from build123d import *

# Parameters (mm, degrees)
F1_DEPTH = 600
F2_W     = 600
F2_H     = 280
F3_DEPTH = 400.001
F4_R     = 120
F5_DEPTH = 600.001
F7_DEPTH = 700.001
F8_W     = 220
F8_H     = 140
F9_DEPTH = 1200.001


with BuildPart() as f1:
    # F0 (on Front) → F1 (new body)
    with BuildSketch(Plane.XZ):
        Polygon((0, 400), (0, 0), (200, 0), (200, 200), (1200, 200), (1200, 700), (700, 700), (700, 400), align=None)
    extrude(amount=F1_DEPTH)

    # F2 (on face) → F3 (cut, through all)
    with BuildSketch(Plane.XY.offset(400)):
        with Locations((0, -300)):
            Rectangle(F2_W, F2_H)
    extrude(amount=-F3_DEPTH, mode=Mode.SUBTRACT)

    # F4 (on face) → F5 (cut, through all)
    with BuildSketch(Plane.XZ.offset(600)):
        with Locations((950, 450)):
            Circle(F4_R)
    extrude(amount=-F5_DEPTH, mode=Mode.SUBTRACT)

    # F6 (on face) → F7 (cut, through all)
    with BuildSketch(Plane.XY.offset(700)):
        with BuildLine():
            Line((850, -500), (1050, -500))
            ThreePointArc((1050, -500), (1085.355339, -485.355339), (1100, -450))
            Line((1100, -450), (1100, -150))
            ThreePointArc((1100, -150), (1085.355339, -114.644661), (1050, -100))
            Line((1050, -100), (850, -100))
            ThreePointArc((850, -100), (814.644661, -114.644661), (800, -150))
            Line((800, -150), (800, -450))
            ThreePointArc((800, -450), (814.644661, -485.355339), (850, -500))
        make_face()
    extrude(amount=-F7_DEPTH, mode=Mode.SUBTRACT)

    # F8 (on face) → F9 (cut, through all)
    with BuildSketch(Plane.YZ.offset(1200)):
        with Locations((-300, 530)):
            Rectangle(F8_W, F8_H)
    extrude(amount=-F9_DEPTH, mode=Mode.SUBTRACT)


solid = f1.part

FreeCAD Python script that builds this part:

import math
import FreeCAD as App
import Part
import Sketcher


def add_polygon(sketch, points):
    """Adds a closed chain of lines whose ends are joined by coincident constraints."""
    first, n = sketch.GeometryCount, len(points)
    for a, b in zip(points, points[1:] + points[:1]):
        sketch.addGeometry(Part.LineSegment(App.Vector(*a, 0), App.Vector(*b, 0)), False)
    for i in range(n):
        sketch.addConstraint(Sketcher.Constraint("Coincident", first + i, 2, first + (i + 1) % n, 1))

doc = App.newDocument("Part")
params = doc.addObject("Spreadsheet::Sheet", "Params")
for row, (alias, value) in enumerate([
    ("sketch1_width", "200 mm"),
    ("sketch1_width2", "1000 mm"),
    ("sketch1_width3", "500 mm"),
    ("sketch1_height", "400 mm"),
    ("pad1_length", "600 mm"),
    ("sketch2_width", "600 mm"),
    ("sketch2_height", "280 mm"),
    ("sketch3_diameter", "240 mm"),
    ("sketch4_radius", "50 mm"),
    ("sketch4_width", "200 mm"),
    ("sketch4_height", "300 mm"),
    ("sketch5_width", "220 mm"),
    ("sketch5_height", "140 mm"),
], start=1):
    params.set(f"A{row}", alias)
    params.set(f"B{row}", "=" + value)
    params.setAlias(f"B{row}", alias)

body = doc.addObject("PartDesign::Body", "Body")

# Sketch on XZ plane
sketch1 = body.newObject("Sketcher::SketchObject", "Sketch")
sketch1.AttachmentSupport = (doc.getObject("XZ_Plane"), [""])
sketch1.MapMode = "FlatFace"
add_polygon(sketch1, [(0, 400), (0, 0), (200, 0), (200, 200), (1200, 200), (1200, 700), (700, 700), (700, 400)])  # lines 0-7
sketch1.addConstraint([
    Sketcher.Constraint("Vertical", 0),
    Sketcher.Constraint("Horizontal", 1),
    Sketcher.Constraint("Vertical", 2),
    Sketcher.Constraint("Horizontal", 3),
    Sketcher.Constraint("Vertical", 4),
    Sketcher.Constraint("Horizontal", 5),
    Sketcher.Constraint("Vertical", 6),
    Sketcher.Constraint("Horizontal", 7),
    Sketcher.Constraint("Coincident", 0, 2, -1, 1),
    Sketcher.Constraint("Equal", 1, 2),
    Sketcher.Constraint("Equal", 5, 4),
    Sketcher.Constraint("DistanceX", 1, 1, 1, 2, 200.0),
    Sketcher.Constraint("DistanceX", 3, 1, 3, 2, 1000.0),
    Sketcher.Constraint("DistanceX", 5, 2, 5, 1, 500.0),
    Sketcher.Constraint("DistanceY", 0, 2, 0, 1, 400.0),
])
sketch1.setExpression("Constraints[19]", "Params.sketch1_width")
sketch1.setExpression("Constraints[20]", "Params.sketch1_width2")
sketch1.setExpression("Constraints[21]", "Params.sketch1_width3")
sketch1.setExpression("Constraints[22]", "Params.sketch1_height")
pad1 = body.newObject("PartDesign::Pad", "Pad")
pad1.Profile = sketch1
pad1.setExpression("Length", "Params.pad1_length")

# Sketch on XY plane
sketch2 = body.newObject("Sketcher::SketchObject", "Sketch001")
sketch2.AttachmentSupport = (doc.getObject("XY_Plane"), [""])
sketch2.MapMode = "FlatFace"
sketch2.AttachmentOffset = App.Placement(App.Vector(0, 0, 400), App.Rotation())
add_polygon(sketch2, [(-300, -160), (-300, -440), (300, -440), (300, -160)])  # lines 0-3
sketch2.addConstraint([
    Sketcher.Constraint("Vertical", 0),
    Sketcher.Constraint("Horizontal", 1),
    Sketcher.Constraint("Vertical", 2),
    Sketcher.Constraint("Horizontal", 3),
    Sketcher.Constraint("DistanceX", 1, 1, 1, 2, 600.0),
    Sketcher.Constraint("DistanceY", 0, 2, 0, 1, 280.0),
    Sketcher.Constraint("DistanceX", 0, 2, -1, 1, 300.0),
    Sketcher.Constraint("DistanceY", 0, 2, -1, 1, 440.0),
])
sketch2.setExpression("Constraints[8]", "Params.sketch2_width")
sketch2.setExpression("Constraints[9]", "Params.sketch2_height")
pocket1 = body.newObject("PartDesign::Pocket", "Pocket")
pocket1.Profile = sketch2
pocket1.Type = "ThroughAll"

# Sketch on XZ plane
sketch3 = body.newObject("Sketcher::SketchObject", "Sketch002")
sketch3.AttachmentSupport = (doc.getObject("XZ_Plane"), [""])
sketch3.MapMode = "FlatFace"
sketch3.AttachmentOffset = App.Placement(App.Vector(0, 0, 600), App.Rotation())
sketch3.addGeometry(Part.Circle(App.Vector(950, 450, 0), App.Vector(0, 0, 1), 120), False)
sketch3.addConstraint([
    Sketcher.Constraint("Diameter", 0, 240.0),
    Sketcher.Constraint("DistanceX", -1, 1, 0, 3, 950.0),
    Sketcher.Constraint("DistanceY", -1, 1, 0, 3, 450.0),
])
sketch3.setExpression("Constraints[0]", "Params.sketch3_diameter")
pocket2 = body.newObject("PartDesign::Pocket", "Pocket001")
pocket2.Profile = sketch3
pocket2.Type = "ThroughAll"

# Sketch on XY plane
sketch4 = body.newObject("Sketcher::SketchObject", "Sketch003")
sketch4.AttachmentSupport = (doc.getObject("XY_Plane"), [""])
sketch4.MapMode = "FlatFace"
sketch4.AttachmentOffset = App.Placement(App.Vector(0, 0, 700), App.Rotation())
sketch4.addGeometry([
    Part.LineSegment(App.Vector(850, -500, 0), App.Vector(1050, -500, 0)),  # 0
    Part.ArcOfCircle(Part.Circle(App.Vector(1050, -450, 0), App.Vector(0, 0, 1), 50), math.radians(-90), math.radians(0)),  # 1
    Part.LineSegment(App.Vector(1100, -450, 0), App.Vector(1100, -150, 0)),  # 2
    Part.ArcOfCircle(Part.Circle(App.Vector(1050, -150, 0), App.Vector(0, 0, 1), 50), math.radians(0), math.radians(90)),  # 3
    Part.LineSegment(App.Vector(1050, -100, 0), App.Vector(850, -100, 0)),  # 4
    Part.ArcOfCircle(Part.Circle(App.Vector(850, -150, 0), App.Vector(0, 0, 1), 50), math.radians(90), math.radians(180)),  # 5
    Part.LineSegment(App.Vector(800, -150, 0), App.Vector(800, -450, 0)),  # 6
    Part.ArcOfCircle(Part.Circle(App.Vector(850, -450, 0), App.Vector(0, 0, 1), 50), math.radians(-180), math.radians(-90)),  # 7
], False)
sketch4.addConstraint([
    Sketcher.Constraint("Tangent", 0, 2, 1, 1),
    Sketcher.Constraint("Tangent", 1, 2, 2, 1),
    Sketcher.Constraint("Tangent", 2, 2, 3, 1),
    Sketcher.Constraint("Tangent", 3, 2, 4, 1),
    Sketcher.Constraint("Tangent", 4, 2, 5, 1),
    Sketcher.Constraint("Tangent", 5, 2, 6, 1),
    Sketcher.Constraint("Tangent", 6, 2, 7, 1),
    Sketcher.Constraint("Tangent", 7, 2, 0, 1),
    Sketcher.Constraint("Horizontal", 0),
    Sketcher.Constraint("Vertical", 2),
    Sketcher.Constraint("Horizontal", 4),
    Sketcher.Constraint("Vertical", 6),
    Sketcher.Constraint("Equal", 1, 3),
    Sketcher.Constraint("Equal", 3, 5),
    Sketcher.Constraint("Equal", 5, 7),
    Sketcher.Constraint("Radius", 1, 50.0),
    Sketcher.Constraint("DistanceX", 0, 1, 0, 2, 200.0),
    Sketcher.Constraint("DistanceY", 2, 1, 2, 2, 300.0),
    Sketcher.Constraint("DistanceX", -1, 1, 1, 3, 1050.0),
    Sketcher.Constraint("DistanceY", 1, 3, -1, 1, 450.0),
])
sketch4.setExpression("Constraints[15]", "Params.sketch4_radius")
sketch4.setExpression("Constraints[16]", "Params.sketch4_width")
sketch4.setExpression("Constraints[17]", "Params.sketch4_height")
pocket3 = body.newObject("PartDesign::Pocket", "Pocket002")
pocket3.Profile = sketch4
pocket3.Type = "ThroughAll"

# Sketch on YZ plane
sketch5 = body.newObject("Sketcher::SketchObject", "Sketch004")
sketch5.AttachmentSupport = (doc.getObject("YZ_Plane"), [""])
sketch5.MapMode = "FlatFace"
sketch5.AttachmentOffset = App.Placement(App.Vector(0, 0, 1200), App.Rotation())
add_polygon(sketch5, [(-410, 600), (-410, 460), (-190, 460), (-190, 600)])  # lines 0-3
sketch5.addConstraint([
    Sketcher.Constraint("Vertical", 0),
    Sketcher.Constraint("Horizontal", 1),
    Sketcher.Constraint("Vertical", 2),
    Sketcher.Constraint("Horizontal", 3),
    Sketcher.Constraint("DistanceX", 1, 1, 1, 2, 220.0),
    Sketcher.Constraint("DistanceY", 0, 2, 0, 1, 140.0),
    Sketcher.Constraint("DistanceX", 0, 2, -1, 1, 410.0),
    Sketcher.Constraint("DistanceY", -1, 1, 0, 2, 460.0),
])
sketch5.setExpression("Constraints[8]", "Params.sketch5_width")
sketch5.setExpression("Constraints[9]", "Params.sketch5_height")
pocket4 = body.newObject("PartDesign::Pocket", "Pocket003")
pocket4.Profile = sketch5
pocket4.Type = "ThroughAll"

doc.recompute()
